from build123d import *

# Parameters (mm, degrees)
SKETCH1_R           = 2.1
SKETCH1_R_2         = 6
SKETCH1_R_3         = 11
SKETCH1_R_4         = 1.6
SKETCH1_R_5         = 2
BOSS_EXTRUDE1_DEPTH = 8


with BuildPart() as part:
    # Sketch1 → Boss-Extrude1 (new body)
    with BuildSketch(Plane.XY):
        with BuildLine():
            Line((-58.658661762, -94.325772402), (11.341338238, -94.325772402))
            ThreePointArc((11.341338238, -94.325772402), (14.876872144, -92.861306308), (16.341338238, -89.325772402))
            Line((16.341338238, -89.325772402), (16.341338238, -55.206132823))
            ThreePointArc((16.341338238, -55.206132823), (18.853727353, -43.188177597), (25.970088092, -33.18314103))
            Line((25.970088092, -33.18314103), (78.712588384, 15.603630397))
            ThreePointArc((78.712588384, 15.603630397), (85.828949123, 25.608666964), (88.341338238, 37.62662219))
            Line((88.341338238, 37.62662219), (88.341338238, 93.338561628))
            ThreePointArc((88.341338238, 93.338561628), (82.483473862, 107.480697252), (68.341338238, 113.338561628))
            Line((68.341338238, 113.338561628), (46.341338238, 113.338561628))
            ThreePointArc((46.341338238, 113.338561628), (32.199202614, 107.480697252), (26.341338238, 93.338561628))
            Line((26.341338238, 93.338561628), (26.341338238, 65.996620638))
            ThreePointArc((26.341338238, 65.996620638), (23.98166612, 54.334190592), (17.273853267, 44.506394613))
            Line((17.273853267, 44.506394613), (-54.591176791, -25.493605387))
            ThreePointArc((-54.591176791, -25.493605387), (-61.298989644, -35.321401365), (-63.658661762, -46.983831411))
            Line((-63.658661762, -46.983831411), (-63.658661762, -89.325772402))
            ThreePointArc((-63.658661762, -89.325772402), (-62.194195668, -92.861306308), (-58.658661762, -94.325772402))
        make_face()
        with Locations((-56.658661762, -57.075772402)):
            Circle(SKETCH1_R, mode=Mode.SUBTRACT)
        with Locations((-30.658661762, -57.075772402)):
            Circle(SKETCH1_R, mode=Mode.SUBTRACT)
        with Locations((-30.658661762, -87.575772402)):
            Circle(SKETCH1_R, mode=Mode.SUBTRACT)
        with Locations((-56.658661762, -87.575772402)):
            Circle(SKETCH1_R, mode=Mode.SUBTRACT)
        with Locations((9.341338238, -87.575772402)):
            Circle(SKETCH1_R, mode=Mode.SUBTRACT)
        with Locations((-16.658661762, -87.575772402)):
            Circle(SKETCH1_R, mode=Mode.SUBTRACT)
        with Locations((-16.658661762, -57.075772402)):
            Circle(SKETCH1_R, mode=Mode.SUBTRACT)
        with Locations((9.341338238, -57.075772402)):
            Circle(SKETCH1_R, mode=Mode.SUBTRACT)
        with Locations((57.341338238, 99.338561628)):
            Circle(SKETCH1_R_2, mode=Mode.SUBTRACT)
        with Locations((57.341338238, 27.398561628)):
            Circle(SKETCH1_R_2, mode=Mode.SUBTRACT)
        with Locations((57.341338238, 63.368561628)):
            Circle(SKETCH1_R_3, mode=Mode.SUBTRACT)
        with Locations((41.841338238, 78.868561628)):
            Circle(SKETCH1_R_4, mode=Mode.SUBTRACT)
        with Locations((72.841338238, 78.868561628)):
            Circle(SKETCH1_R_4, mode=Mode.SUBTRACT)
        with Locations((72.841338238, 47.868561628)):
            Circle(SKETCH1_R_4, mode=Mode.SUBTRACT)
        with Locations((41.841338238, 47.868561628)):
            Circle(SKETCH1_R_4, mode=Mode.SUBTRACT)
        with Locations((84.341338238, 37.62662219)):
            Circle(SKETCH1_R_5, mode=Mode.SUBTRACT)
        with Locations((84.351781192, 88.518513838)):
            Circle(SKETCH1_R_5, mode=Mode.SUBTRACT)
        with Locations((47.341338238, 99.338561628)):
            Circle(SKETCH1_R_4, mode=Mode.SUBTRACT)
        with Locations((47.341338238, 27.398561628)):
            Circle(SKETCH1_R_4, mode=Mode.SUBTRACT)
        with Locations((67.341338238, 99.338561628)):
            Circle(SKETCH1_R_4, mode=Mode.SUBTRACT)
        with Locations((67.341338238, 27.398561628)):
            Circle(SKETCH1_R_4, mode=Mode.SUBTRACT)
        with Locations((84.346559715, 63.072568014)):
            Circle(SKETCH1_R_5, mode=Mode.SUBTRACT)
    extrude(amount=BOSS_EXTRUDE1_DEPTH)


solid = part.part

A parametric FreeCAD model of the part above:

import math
import FreeCAD as App
import Part
import Sketcher
from FreeCAD import Vector
Q = App.Units.Quantity

doc = App.newDocument("Part")
params = doc.addObject("Spreadsheet::Sheet", "Params")
for row, (alias, value) in enumerate([
    ("sketch1_diameter", "12 mm"),
    ("sketch1_diameter2", "4 mm"),
    ("sketch1_diameter3", "22 mm"),
    ("sketch1_radius", "5 mm"),
    ("sketch1_radius2", "30 mm"),
    ("pad1_length", "8 mm"),
], start=1):
    params.set(f"A{row}", alias)
    params.set(f"B{row}", "=" + value)
    params.setAlias(f"B{row}", alias)

body = doc.addObject("PartDesign::Body", "Body")

sketch1 = body.newObject("Sketcher::SketchObject", "Sketch")
sketch1.AttachmentSupport = (doc.getObject("XY_Plane"), [""])
sketch1.MapMode = "FlatFace"
sketch1.addGeometry(Part.LineSegment(Vector(-58.658662, -94.325772, 0), Vector(11.341338, -94.325772, 0)), False)
sketch1.addGeometry(Part.ArcOfCircle(Part.Circle(Vector(11.341338, -89.325772, 0), Vector(0, 0, 1), 5), math.radians(-90), math.radians(0)), False)
sketch1.addGeometry(Part.LineSegment(Vector(16.341338, -89.325772, 0), Vector(16.341338, -55.206133, 0)), False)
sketch1.addGeometry(Part.ArcOfCircle(Part.Circle(Vector(46.341338, -55.206133, 0), Vector(0, 0, 1), 30), math.radians(132.768801), math.radians(180)), False)
sketch1.addGeometry(Part.LineSegment(Vector(25.970088, -33.183141, 0), Vector(78.712588, 15.60363, 0)), False)
sketch1.addGeometry(Part.ArcOfCircle(Part.Circle(Vector(58.341338, 37.626622, 0), Vector(0, 0, 1), 30), math.radians(-47.231199), math.radians(0)), False)
sketch1.addGeometry(Part.LineSegment(Vector(88.341338, 37.626622, 0), Vector(88.341338, 93.338562, 0)), False)
sketch1.addGeometry(Part.ArcOfCircle(Part.Circle(Vector(68.341338, 93.338562, 0), Vector(0, 0, 1), 20), math.radians(0), math.radians(90)), False)
sketch1.addGeometry(Part.LineSegment(Vector(68.341338, 113.338562, 0), Vector(46.341338, 113.338562, 0)), False)
sketch1.addGeometry(Part.ArcOfCircle(Part.Circle(Vector(46.341338, 93.338562, 0), Vector(0, 0, 1), 20), math.radians(90), math.radians(180)), False)
sketch1.addGeometry(Part.LineSegment(Vector(26.341338, 93.338562, 0), Vector(26.341338, 65.996621, 0)), False)
sketch1.addGeometry(Part.ArcOfCircle(Part.Circle(Vector(-3.658662, 65.996621, 0), Vector(0, 0, 1), 30), math.radians(-45.753196), math.radians(0)), False)
sketch1.addGeometry(Part.LineSegment(Vector(17.273853, 44.506395, 0), Vector(-54.591177, -25.493605, 0)), False)
sketch1.addGeometry(Part.ArcOfCircle(Part.Circle(Vector(-33.658662, -46.983831, 0), Vector(0, 0, 1), 30), math.radians(134.246804), math.radians(180)), False)
sketch1.addGeometry(Part.LineSegment(Vector(-63.658662, -46.983831, 0), Vector(-63.658662, -89.325772, 0)), False)
sketch1.addGeometry(Part.ArcOfCircle(Part.Circle(Vector(-58.658662, -89.325772, 0), Vector(0, 0, 1), 5), math.radians(180), math.radians(270)), False)
sketch1.addGeometry(Part.Circle(Vector(-56.658662, -87.575772, 0), Vector(0, 0, 1), 2.1), False)
sketch1.addGeometry(Part.Circle(Vector(-30.658662, -87.575772, 0), Vector(0, 0, 1), 2.1), False)
sketch1.addGeometry(Part.Circle(Vector(-56.658662, -57.075772, 0), Vector(0, 0, 1), 2.1), False)
sketch1.addGeometry(Part.Circle(Vector(-30.658662, -57.075772, 0), Vector(0, 0, 1), 2.1), False)
sketch1.addGeometry(Part.Circle(Vector(-16.658662, -87.575772, 0), Vector(0, 0, 1), 2.1), False)
sketch1.addGeometry(Part.Circle(Vector(9.341338, -87.575772, 0), Vector(0, 0, 1), 2.1), False)
sketch1.addGeometry(Part.Circle(Vector(-16.658662, -57.075772, 0), Vector(0, 0, 1), 2.1), False)
sketch1.addGeometry(Part.Circle(Vector(9.341338, -57.075772, 0), Vector(0, 0, 1), 2.1), False)
sketch1.addGeometry(Part.Circle(Vector(47.341338, 27.398562, 0), Vector(0, 0, 1), 1.6), False)
sketch1.addGeometry(Part.Circle(Vector(41.841338, 47.868562, 0), Vector(0, 0, 1), 1.6), False)
sketch1.addGeometry(Part.Circle(Vector(57.341338, 27.398562, 0), Vector(0, 0, 1), 6), False)
sketch1.addGeometry(Part.Circle(Vector(67.341338, 27.398562, 0), Vector(0, 0, 1), 1.6), False)
sketch1.addGeometry(Part.Circle(Vector(84.341338, 37.626622, 0), Vector(0, 0, 1), 2), False)
sketch1.addGeometry(Part.Circle(Vector(72.841338, 47.868562, 0), Vector(0, 0, 1), 1.6), False)
sketch1.addGeometry(Part.Circle(Vector(41.841338, 78.868562, 0), Vector(0, 0, 1), 1.6), False)
sketch1.addGeometry(Part.Circle(Vector(47.341338, 99.338562, 0), Vector(0, 0, 1), 1.6), False)
sketch1.addGeometry(Part.Circle(Vector(57.341338, 63.368562, 0), Vector(0, 0, 1), 11), False)
sketch1.addGeometry(Part.Circle(Vector(84.34656, 63.072568, 0), Vector(0, 0, 1), 2), False)
sketch1.addGeometry(Part.Circle(Vector(72.841338, 78.868562, 0), Vector(0, 0, 1), 1.6), False)
sketch1.addGeometry(Part.Circle(Vector(57.341338, 99.338562, 0), Vector(0, 0, 1), 6), False)
sketch1.addGeometry(Part.Circle(Vector(67.341338, 99.338562, 0), Vector(0, 0, 1), 1.6), False)
sketch1.addGeometry(Part.Circle(Vector(84.351781, 88.518514, 0), Vector(0, 0, 1), 2), False)
sketch1.addConstraint(Sketcher.Constraint("Tangent", 0, 2, 1, 1))
sketch1.addConstraint(Sketcher.Constraint("Tangent", 1, 2, 2, 1))
sketch1.addConstraint(Sketcher.Constraint("Tangent", 2, 2, 3, 2))
sketch1.addConstraint(Sketcher.Constraint("Tangent", 3, 1, 4, 1))
sketch1.addConstraint(Sketcher.Constraint("Tangent", 4, 2, 5, 1))
sketch1.addConstraint(Sketcher.Constraint("Tangent", 5, 2, 6, 1))
sketch1.addConstraint(Sketcher.Constraint("Tangent", 6, 2, 7, 1))
sketch1.addConstraint(Sketcher.Constraint("Tangent", 7, 2, 8, 1))
sketch1.addConstraint(Sketcher.Constraint("Tangent", 8, 2, 9, 1))
sketch1.addConstraint(Sketcher.Constraint("Tangent", 9, 2, 10, 1))
sketch1.addConstraint(Sketcher.Constraint("Tangent", 10, 2, 11, 2))
sketch1.addConstraint(Sketcher.Constraint("Tangent", 11, 1, 12, 1))
sketch1.addConstraint(Sketcher.Constraint("Tangent", 12, 2, 13, 1))
sketch1.addConstraint(Sketcher.Constraint("Tangent", 13, 2, 14, 1))
sketch1.addConstraint(Sketcher.Constraint("Tangent", 14, 2, 15, 1))
sketch1.addConstraint(Sketcher.Constraint("Tangent", 15, 2, 0, 1))
sketch1.addConstraint(Sketcher.Constraint("Horizontal", 0))
sketch1.addConstraint(Sketcher.Constraint("Vertical", 2))
sketch1.addConstraint(Sketcher.Constraint("Vertical", 6))
sketch1.addConstraint(Sketcher.Constraint("Horizontal", 8))
sketch1.addConstraint(Sketcher.Constraint("Vertical", 10))
sketch1.addConstraint(Sketcher.Constraint("Vertical", 14))
sketch1.addConstraint(Sketcher.Constraint("Equal", 3, 5))
sketch1.addConstraint(Sketcher.Constraint("Equal", 7, 9))
sketch1.addConstraint(Sketcher.Constraint("Equal", 5, 11))
sketch1.addConstraint(Sketcher.Constraint("Equal", 11, 13))
sketch1.addConstraint(Sketcher.Constraint("Equal", 1, 15))
sketch1.addConstraint(Sketcher.Constraint("Equal", 16, 17))
sketch1.addConstraint(Sketcher.Constraint("Equal", 17, 18))
sketch1.addConstraint(Sketcher.Constraint("Equal", 18, 19))
sketch1.addConstraint(Sketcher.Constraint("Equal", 19, 20))
sketch1.addConstraint(Sketcher.Constraint("Equal", 20, 21))
sketch1.addConstraint(Sketcher.Constraint("Equal", 21, 22))
sketch1.addConstraint(Sketcher.Constraint("Equal", 22, 23))
sketch1.addConstraint(Sketcher.Constraint("Equal", 24, 25))
sketch1.addConstraint(Sketcher.Constraint("Equal", 25, 27))
sketch1.addConstraint(Sketcher.Constraint("Equal", 27, 29))
sketch1.addConstraint(Sketcher.Constraint("Equal", 29, 30))
sketch1.addConstraint(Sketcher.Constraint("Equal", 30, 31))
sketch1.addConstraint(Sketcher.Constraint("Equal", 28, 33))
sketch1.addConstraint(Sketcher.Constraint("Equal", 31, 34))
sketch1.addConstraint(Sketcher.Constraint("Equal", 26, 35))
sketch1.addConstraint(Sketcher.Constraint("Equal", 34, 36))
sketch1.addConstraint(Sketcher.Constraint("Equal", 33, 37))
sketch1.addConstraint(Sketcher.Constraint("Horizontal", 16, 3, 17, 3))
sketch1.addConstraint(Sketcher.Constraint("Horizontal", 18, 3, 19, 3))
sketch1.addConstraint(Sketcher.Constraint("Horizontal", 17, 3, 20, 3))
sketch1.addConstraint(Sketcher.Constraint("Horizontal", 20, 3, 21, 3))
sketch1.addConstraint(Sketcher.Constraint("Horizontal", 19, 3, 22, 3))
sketch1.addConstraint(Sketcher.Constraint("Horizontal", 22, 3, 23, 3))
sketch1.addConstraint(Sketcher.Constraint("Horizontal", 24, 3, 26, 3))
sketch1.addConstraint(Sketcher.Constraint("Horizontal", 26, 3, 27, 3))
sketch1.addConstraint(Sketcher.Constraint("Horizontal", 5, 3, 28, 3))
sketch1.addConstraint(Sketcher.Constraint("Horizontal", 25, 3, 29, 3))
sketch1.addConstraint(Sketcher.Constraint("Horizontal", 30, 3, 34, 3))
sketch1.addConstraint(Sketcher.Constraint("Horizontal", 31, 3, 35, 3))
sketch1.addConstraint(Sketcher.Constraint("Horizontal", 35, 3, 36, 3))
sketch1.addConstraint(Sketcher.Constraint("Vertical", 3, 3, 9, 3))
sketch1.addConstraint(Sketcher.Constraint("Vertical", 16, 3, 18, 3))
sketch1.addConstraint(Sketcher.Constraint("Vertical", 17, 3, 19, 3))
sketch1.addConstraint(Sketcher.Constraint("Vertical", 20, 3, 22, 3))
sketch1.addConstraint(Sketcher.Constraint("Vertical", 21, 3, 23, 3))
sketch1.addConstraint(Sketcher.Constraint("Vertical", 25, 3, 30, 3))
sketch1.addConstraint(Sketcher.Constraint("Vertical", 24, 3, 31, 3))
sketch1.addConstraint(Sketcher.Constraint("Vertical", 26, 3, 32, 3))
sketch1.addConstraint(Sketcher.Constraint("Vertical", 29, 3, 34, 3))
sketch1.addConstraint(Sketcher.Constraint("Vertical", 32, 3, 35, 3))
sketch1.addConstraint(Sketcher.Constraint("Vertical", 27, 3, 36, 3))
sketch1.addConstraint(Sketcher.Constraint("Diameter", 26, Q("12 mm")))
sketch1.addConstraint(Sketcher.Constraint("Diameter", 28, Q("4 mm")))
sketch1.addConstraint(Sketcher.Constraint("Diameter", 32, Q("22 mm")))
sketch1.addConstraint(Sketcher.Constraint("Radius", 1, Q("5 mm")))
sketch1.addConstraint(Sketcher.Constraint("Radius", 3, Q("30 mm")))
sketch1.addConstraint(Sketcher.Constraint("Radius", 7, Q("20 mm")))
sketch1.addConstraint(Sketcher.Constraint("Diameter", 16, Q("4.2 mm")))
sketch1.addConstraint(Sketcher.Constraint("Diameter", 24, Q("3.2 mm")))
sketch1.addConstraint(Sketcher.Constraint("DistanceX", 0, 1, 0, 2, Q("70 mm")))
sketch1.addConstraint(Sketcher.Constraint("DistanceX", 8, 2, 8, 1, Q("22 mm")))
sketch1.addConstraint(Sketcher.Constraint("DistanceX", 15, 3, 16, 3, Q("2 mm")))
sketch1.addConstraint(Sketcher.Constraint("DistanceX", 16, 3, 17, 3, Q("26 mm")))
sketch1.addConstraint(Sketcher.Constraint("DistanceX", 17, 3, 20, 3, Q("14 mm")))
sketch1.addConstraint(Sketcher.Constraint("DistanceX", 21, 3, 1, 3, Q("2 mm")))
sketch1.addConstraint(Sketcher.Constraint("DistanceX", 24, 3, 5, 3, Q("11 mm")))
sketch1.addConstraint(Sketcher.Constraint("DistanceX", 24, 3, 26, 3, Q("10 mm")))
sketch1.addConstraint(Sketcher.Constraint("DistanceX", 26, 3, 27, 3, Q("10 mm")))
sketch1.addConstraint(Sketcher.Constraint("DistanceX", 27, 3, 28, 3, Q("17 mm")))
sketch1.addConstraint(Sketcher.Constraint("DistanceX", 25, 3, 29, 3, Q("31 mm")))
sketch1.addConstraint(Sketcher.Constraint("DistanceY", 25, 3, 30, 3, Q("31 mm")))
sketch1.addConstraint(Sketcher.Constraint("DistanceY", 9, 3, 31, 3, Q("6 mm")))
sketch1.addConstraint(Sketcher.Constraint("DistanceY", 16, 3, 18, 3, Q("30.5 mm")))
sketch1.addConstraint(Sketcher.Constraint("DistanceX", 25, 3, 5, 3, Q("16.5 mm")))
sketch1.addConstraint(Sketcher.Constraint("DistanceY", 32, 3, 30, 3, Q("15.5 mm")))
sketch1.addConstraint(Sketcher.Constraint("DistanceY", 5, 3, 11, 3, Q("28.369998 mm")))
sketch1.addConstraint(Sketcher.Constraint("DistanceY", 15, 3, 16, 3, Q("1.75 mm")))
sketch1.addConstraint(Sketcher.Constraint("DistanceY", 24, 3, 9, 3, Q("65.94 mm")))
sketch1.addConstraint(Sketcher.Constraint("DistanceY", 24, 3, 25, 3, Q("20.47 mm")))
sketch1.addConstraint(Sketcher.Constraint("DistanceY", 2, 1, 2, 2, Q("34.11964 mm")))
sketch1.addConstraint(Sketcher.Constraint("DistanceY", 6, 1, 6, 2, Q("55.711939 mm")))
sketch1.addConstraint(Sketcher.Constraint("DistanceY", 14, 2, 14, 1, Q("42.341941 mm")))
sketch1.addConstraint(Sketcher.Constraint("DistanceX", -1, 1, 1, 3, Q("11.341338 mm")))
sketch1.addConstraint(Sketcher.Constraint("DistanceY", -1, 1, 7, 3, Q("93.338562 mm")))
sketch1.addConstraint(Sketcher.Constraint("DistanceY", 13, 3, -1, 1, Q("46.983831 mm")))
sketch1.addConstraint(Sketcher.Constraint("DistanceX", -1, 1, 33, 3, Q("84.34656 mm")))
sketch1.addConstraint(Sketcher.Constraint("DistanceY", -1, 1, 33, 3, Q("63.072568 mm")))
sketch1.addConstraint(Sketcher.Constraint("DistanceX", -1, 1, 37, 3, Q("84.351781 mm")))
sketch1.addConstraint(Sketcher.Constraint("DistanceY", -1, 1, 37, 3, Q("88.518514 mm")))
sketch1.setExpression("Constraints[68]", "Params.sketch1_diameter")
sketch1.setExpression("Constraints[69]", "Params.sketch1_diameter2")
sketch1.setExpression("Constraints[70]", "Params.sketch1_diameter3")
sketch1.setExpression("Constraints[71]", "Params.sketch1_radius")
sketch1.setExpression("Constraints[72]", "Params.sketch1_radius2")
pad1 = body.newObject("PartDesign::Pad", "Pad")
pad1.Profile = sketch1
pad1.setExpression("Length", "Params.pad1_length")

doc.recompute()
